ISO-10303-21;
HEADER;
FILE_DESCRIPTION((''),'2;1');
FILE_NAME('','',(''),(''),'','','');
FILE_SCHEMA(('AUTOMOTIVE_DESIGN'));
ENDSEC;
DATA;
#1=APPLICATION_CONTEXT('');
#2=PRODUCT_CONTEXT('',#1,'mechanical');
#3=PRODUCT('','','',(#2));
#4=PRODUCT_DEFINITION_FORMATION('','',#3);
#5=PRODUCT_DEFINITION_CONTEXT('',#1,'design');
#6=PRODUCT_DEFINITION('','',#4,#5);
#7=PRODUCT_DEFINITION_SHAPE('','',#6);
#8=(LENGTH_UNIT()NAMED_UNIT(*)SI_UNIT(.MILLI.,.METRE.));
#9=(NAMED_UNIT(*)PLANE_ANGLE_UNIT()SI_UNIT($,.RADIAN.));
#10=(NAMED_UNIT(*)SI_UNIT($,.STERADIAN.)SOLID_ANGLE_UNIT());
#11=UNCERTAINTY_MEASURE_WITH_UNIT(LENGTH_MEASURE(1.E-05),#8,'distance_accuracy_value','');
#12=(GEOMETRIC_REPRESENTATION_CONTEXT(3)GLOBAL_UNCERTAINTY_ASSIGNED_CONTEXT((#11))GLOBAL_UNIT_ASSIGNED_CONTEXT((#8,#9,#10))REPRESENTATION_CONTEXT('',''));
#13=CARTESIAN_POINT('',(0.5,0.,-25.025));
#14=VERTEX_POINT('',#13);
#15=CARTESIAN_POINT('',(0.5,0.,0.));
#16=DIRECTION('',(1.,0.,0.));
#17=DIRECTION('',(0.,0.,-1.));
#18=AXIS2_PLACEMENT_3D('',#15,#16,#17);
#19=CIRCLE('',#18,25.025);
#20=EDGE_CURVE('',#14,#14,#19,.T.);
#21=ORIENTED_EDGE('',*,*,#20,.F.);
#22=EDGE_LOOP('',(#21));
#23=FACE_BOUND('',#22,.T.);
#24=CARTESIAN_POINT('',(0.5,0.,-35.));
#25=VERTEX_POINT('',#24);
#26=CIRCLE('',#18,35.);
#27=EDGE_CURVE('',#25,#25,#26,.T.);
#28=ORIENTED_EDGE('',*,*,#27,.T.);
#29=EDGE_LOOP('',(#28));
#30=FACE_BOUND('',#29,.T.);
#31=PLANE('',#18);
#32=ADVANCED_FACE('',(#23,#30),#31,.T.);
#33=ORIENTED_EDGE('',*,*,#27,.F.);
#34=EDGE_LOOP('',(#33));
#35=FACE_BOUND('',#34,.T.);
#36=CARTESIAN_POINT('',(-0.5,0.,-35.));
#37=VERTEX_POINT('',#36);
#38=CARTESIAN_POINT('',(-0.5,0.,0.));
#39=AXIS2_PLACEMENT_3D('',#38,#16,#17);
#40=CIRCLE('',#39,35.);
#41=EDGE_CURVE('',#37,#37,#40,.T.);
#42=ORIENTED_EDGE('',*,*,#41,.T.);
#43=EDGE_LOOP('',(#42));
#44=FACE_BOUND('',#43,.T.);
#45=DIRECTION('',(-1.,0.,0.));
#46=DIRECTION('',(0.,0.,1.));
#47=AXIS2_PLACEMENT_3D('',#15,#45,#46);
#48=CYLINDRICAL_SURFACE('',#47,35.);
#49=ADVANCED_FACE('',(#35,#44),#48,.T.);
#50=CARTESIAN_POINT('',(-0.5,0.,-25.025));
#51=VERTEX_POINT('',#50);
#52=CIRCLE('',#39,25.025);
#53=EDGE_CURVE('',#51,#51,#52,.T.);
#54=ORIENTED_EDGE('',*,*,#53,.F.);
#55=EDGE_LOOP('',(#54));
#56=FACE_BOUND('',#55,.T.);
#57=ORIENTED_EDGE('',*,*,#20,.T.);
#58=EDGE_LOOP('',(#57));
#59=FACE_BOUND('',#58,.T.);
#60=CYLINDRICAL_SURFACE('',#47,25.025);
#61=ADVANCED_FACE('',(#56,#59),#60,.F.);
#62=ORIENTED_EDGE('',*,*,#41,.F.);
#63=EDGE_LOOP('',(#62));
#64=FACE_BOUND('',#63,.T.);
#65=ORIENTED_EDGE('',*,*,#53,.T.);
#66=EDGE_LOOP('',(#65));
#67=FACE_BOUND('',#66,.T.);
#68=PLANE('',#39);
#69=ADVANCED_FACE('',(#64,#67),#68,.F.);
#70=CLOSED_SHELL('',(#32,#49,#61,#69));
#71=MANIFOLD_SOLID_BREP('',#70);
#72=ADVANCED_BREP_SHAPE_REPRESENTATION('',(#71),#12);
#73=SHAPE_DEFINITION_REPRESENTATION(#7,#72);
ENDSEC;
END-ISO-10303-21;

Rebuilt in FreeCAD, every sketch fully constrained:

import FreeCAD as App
import Part
import Sketcher

V = App.Vector
Q = App.Units.Quantity

doc = App.newDocument("Part")
body = doc.addObject("PartDesign::Body", "Body")

sketch1 = body.newObject("Sketcher::SketchObject", "Sketch")
sketch1.AttachmentSupport = (doc.getObject("YZ_Plane"), [""])
sketch1.MapMode = "FlatFace"
sketch1.addGeometry([
    Part.Circle(V(0, 0, 0), V(0, 0, 1), 35),
    Part.Circle(V(0, 0, 0), V(0, 0, 1), 25.025),
], False)
sketch1.addConstraint([
    Sketcher.Constraint("Coincident", 0, 3, -1, 1),
    Sketcher.Constraint("Coincident", 1, 3, -1, 1),
    Sketcher.Constraint("Diameter", 0, Q("70 mm")),
    Sketcher.Constraint("Diameter", 1, Q("50.05 mm")),
])
pad1 = body.newObject("PartDesign::Pad", "Pad")
pad1.Profile = sketch1
pad1.Type = "TwoLengths"
pad1.Length = 0.5
pad1.Length2 = 0.5

doc.recompute()
